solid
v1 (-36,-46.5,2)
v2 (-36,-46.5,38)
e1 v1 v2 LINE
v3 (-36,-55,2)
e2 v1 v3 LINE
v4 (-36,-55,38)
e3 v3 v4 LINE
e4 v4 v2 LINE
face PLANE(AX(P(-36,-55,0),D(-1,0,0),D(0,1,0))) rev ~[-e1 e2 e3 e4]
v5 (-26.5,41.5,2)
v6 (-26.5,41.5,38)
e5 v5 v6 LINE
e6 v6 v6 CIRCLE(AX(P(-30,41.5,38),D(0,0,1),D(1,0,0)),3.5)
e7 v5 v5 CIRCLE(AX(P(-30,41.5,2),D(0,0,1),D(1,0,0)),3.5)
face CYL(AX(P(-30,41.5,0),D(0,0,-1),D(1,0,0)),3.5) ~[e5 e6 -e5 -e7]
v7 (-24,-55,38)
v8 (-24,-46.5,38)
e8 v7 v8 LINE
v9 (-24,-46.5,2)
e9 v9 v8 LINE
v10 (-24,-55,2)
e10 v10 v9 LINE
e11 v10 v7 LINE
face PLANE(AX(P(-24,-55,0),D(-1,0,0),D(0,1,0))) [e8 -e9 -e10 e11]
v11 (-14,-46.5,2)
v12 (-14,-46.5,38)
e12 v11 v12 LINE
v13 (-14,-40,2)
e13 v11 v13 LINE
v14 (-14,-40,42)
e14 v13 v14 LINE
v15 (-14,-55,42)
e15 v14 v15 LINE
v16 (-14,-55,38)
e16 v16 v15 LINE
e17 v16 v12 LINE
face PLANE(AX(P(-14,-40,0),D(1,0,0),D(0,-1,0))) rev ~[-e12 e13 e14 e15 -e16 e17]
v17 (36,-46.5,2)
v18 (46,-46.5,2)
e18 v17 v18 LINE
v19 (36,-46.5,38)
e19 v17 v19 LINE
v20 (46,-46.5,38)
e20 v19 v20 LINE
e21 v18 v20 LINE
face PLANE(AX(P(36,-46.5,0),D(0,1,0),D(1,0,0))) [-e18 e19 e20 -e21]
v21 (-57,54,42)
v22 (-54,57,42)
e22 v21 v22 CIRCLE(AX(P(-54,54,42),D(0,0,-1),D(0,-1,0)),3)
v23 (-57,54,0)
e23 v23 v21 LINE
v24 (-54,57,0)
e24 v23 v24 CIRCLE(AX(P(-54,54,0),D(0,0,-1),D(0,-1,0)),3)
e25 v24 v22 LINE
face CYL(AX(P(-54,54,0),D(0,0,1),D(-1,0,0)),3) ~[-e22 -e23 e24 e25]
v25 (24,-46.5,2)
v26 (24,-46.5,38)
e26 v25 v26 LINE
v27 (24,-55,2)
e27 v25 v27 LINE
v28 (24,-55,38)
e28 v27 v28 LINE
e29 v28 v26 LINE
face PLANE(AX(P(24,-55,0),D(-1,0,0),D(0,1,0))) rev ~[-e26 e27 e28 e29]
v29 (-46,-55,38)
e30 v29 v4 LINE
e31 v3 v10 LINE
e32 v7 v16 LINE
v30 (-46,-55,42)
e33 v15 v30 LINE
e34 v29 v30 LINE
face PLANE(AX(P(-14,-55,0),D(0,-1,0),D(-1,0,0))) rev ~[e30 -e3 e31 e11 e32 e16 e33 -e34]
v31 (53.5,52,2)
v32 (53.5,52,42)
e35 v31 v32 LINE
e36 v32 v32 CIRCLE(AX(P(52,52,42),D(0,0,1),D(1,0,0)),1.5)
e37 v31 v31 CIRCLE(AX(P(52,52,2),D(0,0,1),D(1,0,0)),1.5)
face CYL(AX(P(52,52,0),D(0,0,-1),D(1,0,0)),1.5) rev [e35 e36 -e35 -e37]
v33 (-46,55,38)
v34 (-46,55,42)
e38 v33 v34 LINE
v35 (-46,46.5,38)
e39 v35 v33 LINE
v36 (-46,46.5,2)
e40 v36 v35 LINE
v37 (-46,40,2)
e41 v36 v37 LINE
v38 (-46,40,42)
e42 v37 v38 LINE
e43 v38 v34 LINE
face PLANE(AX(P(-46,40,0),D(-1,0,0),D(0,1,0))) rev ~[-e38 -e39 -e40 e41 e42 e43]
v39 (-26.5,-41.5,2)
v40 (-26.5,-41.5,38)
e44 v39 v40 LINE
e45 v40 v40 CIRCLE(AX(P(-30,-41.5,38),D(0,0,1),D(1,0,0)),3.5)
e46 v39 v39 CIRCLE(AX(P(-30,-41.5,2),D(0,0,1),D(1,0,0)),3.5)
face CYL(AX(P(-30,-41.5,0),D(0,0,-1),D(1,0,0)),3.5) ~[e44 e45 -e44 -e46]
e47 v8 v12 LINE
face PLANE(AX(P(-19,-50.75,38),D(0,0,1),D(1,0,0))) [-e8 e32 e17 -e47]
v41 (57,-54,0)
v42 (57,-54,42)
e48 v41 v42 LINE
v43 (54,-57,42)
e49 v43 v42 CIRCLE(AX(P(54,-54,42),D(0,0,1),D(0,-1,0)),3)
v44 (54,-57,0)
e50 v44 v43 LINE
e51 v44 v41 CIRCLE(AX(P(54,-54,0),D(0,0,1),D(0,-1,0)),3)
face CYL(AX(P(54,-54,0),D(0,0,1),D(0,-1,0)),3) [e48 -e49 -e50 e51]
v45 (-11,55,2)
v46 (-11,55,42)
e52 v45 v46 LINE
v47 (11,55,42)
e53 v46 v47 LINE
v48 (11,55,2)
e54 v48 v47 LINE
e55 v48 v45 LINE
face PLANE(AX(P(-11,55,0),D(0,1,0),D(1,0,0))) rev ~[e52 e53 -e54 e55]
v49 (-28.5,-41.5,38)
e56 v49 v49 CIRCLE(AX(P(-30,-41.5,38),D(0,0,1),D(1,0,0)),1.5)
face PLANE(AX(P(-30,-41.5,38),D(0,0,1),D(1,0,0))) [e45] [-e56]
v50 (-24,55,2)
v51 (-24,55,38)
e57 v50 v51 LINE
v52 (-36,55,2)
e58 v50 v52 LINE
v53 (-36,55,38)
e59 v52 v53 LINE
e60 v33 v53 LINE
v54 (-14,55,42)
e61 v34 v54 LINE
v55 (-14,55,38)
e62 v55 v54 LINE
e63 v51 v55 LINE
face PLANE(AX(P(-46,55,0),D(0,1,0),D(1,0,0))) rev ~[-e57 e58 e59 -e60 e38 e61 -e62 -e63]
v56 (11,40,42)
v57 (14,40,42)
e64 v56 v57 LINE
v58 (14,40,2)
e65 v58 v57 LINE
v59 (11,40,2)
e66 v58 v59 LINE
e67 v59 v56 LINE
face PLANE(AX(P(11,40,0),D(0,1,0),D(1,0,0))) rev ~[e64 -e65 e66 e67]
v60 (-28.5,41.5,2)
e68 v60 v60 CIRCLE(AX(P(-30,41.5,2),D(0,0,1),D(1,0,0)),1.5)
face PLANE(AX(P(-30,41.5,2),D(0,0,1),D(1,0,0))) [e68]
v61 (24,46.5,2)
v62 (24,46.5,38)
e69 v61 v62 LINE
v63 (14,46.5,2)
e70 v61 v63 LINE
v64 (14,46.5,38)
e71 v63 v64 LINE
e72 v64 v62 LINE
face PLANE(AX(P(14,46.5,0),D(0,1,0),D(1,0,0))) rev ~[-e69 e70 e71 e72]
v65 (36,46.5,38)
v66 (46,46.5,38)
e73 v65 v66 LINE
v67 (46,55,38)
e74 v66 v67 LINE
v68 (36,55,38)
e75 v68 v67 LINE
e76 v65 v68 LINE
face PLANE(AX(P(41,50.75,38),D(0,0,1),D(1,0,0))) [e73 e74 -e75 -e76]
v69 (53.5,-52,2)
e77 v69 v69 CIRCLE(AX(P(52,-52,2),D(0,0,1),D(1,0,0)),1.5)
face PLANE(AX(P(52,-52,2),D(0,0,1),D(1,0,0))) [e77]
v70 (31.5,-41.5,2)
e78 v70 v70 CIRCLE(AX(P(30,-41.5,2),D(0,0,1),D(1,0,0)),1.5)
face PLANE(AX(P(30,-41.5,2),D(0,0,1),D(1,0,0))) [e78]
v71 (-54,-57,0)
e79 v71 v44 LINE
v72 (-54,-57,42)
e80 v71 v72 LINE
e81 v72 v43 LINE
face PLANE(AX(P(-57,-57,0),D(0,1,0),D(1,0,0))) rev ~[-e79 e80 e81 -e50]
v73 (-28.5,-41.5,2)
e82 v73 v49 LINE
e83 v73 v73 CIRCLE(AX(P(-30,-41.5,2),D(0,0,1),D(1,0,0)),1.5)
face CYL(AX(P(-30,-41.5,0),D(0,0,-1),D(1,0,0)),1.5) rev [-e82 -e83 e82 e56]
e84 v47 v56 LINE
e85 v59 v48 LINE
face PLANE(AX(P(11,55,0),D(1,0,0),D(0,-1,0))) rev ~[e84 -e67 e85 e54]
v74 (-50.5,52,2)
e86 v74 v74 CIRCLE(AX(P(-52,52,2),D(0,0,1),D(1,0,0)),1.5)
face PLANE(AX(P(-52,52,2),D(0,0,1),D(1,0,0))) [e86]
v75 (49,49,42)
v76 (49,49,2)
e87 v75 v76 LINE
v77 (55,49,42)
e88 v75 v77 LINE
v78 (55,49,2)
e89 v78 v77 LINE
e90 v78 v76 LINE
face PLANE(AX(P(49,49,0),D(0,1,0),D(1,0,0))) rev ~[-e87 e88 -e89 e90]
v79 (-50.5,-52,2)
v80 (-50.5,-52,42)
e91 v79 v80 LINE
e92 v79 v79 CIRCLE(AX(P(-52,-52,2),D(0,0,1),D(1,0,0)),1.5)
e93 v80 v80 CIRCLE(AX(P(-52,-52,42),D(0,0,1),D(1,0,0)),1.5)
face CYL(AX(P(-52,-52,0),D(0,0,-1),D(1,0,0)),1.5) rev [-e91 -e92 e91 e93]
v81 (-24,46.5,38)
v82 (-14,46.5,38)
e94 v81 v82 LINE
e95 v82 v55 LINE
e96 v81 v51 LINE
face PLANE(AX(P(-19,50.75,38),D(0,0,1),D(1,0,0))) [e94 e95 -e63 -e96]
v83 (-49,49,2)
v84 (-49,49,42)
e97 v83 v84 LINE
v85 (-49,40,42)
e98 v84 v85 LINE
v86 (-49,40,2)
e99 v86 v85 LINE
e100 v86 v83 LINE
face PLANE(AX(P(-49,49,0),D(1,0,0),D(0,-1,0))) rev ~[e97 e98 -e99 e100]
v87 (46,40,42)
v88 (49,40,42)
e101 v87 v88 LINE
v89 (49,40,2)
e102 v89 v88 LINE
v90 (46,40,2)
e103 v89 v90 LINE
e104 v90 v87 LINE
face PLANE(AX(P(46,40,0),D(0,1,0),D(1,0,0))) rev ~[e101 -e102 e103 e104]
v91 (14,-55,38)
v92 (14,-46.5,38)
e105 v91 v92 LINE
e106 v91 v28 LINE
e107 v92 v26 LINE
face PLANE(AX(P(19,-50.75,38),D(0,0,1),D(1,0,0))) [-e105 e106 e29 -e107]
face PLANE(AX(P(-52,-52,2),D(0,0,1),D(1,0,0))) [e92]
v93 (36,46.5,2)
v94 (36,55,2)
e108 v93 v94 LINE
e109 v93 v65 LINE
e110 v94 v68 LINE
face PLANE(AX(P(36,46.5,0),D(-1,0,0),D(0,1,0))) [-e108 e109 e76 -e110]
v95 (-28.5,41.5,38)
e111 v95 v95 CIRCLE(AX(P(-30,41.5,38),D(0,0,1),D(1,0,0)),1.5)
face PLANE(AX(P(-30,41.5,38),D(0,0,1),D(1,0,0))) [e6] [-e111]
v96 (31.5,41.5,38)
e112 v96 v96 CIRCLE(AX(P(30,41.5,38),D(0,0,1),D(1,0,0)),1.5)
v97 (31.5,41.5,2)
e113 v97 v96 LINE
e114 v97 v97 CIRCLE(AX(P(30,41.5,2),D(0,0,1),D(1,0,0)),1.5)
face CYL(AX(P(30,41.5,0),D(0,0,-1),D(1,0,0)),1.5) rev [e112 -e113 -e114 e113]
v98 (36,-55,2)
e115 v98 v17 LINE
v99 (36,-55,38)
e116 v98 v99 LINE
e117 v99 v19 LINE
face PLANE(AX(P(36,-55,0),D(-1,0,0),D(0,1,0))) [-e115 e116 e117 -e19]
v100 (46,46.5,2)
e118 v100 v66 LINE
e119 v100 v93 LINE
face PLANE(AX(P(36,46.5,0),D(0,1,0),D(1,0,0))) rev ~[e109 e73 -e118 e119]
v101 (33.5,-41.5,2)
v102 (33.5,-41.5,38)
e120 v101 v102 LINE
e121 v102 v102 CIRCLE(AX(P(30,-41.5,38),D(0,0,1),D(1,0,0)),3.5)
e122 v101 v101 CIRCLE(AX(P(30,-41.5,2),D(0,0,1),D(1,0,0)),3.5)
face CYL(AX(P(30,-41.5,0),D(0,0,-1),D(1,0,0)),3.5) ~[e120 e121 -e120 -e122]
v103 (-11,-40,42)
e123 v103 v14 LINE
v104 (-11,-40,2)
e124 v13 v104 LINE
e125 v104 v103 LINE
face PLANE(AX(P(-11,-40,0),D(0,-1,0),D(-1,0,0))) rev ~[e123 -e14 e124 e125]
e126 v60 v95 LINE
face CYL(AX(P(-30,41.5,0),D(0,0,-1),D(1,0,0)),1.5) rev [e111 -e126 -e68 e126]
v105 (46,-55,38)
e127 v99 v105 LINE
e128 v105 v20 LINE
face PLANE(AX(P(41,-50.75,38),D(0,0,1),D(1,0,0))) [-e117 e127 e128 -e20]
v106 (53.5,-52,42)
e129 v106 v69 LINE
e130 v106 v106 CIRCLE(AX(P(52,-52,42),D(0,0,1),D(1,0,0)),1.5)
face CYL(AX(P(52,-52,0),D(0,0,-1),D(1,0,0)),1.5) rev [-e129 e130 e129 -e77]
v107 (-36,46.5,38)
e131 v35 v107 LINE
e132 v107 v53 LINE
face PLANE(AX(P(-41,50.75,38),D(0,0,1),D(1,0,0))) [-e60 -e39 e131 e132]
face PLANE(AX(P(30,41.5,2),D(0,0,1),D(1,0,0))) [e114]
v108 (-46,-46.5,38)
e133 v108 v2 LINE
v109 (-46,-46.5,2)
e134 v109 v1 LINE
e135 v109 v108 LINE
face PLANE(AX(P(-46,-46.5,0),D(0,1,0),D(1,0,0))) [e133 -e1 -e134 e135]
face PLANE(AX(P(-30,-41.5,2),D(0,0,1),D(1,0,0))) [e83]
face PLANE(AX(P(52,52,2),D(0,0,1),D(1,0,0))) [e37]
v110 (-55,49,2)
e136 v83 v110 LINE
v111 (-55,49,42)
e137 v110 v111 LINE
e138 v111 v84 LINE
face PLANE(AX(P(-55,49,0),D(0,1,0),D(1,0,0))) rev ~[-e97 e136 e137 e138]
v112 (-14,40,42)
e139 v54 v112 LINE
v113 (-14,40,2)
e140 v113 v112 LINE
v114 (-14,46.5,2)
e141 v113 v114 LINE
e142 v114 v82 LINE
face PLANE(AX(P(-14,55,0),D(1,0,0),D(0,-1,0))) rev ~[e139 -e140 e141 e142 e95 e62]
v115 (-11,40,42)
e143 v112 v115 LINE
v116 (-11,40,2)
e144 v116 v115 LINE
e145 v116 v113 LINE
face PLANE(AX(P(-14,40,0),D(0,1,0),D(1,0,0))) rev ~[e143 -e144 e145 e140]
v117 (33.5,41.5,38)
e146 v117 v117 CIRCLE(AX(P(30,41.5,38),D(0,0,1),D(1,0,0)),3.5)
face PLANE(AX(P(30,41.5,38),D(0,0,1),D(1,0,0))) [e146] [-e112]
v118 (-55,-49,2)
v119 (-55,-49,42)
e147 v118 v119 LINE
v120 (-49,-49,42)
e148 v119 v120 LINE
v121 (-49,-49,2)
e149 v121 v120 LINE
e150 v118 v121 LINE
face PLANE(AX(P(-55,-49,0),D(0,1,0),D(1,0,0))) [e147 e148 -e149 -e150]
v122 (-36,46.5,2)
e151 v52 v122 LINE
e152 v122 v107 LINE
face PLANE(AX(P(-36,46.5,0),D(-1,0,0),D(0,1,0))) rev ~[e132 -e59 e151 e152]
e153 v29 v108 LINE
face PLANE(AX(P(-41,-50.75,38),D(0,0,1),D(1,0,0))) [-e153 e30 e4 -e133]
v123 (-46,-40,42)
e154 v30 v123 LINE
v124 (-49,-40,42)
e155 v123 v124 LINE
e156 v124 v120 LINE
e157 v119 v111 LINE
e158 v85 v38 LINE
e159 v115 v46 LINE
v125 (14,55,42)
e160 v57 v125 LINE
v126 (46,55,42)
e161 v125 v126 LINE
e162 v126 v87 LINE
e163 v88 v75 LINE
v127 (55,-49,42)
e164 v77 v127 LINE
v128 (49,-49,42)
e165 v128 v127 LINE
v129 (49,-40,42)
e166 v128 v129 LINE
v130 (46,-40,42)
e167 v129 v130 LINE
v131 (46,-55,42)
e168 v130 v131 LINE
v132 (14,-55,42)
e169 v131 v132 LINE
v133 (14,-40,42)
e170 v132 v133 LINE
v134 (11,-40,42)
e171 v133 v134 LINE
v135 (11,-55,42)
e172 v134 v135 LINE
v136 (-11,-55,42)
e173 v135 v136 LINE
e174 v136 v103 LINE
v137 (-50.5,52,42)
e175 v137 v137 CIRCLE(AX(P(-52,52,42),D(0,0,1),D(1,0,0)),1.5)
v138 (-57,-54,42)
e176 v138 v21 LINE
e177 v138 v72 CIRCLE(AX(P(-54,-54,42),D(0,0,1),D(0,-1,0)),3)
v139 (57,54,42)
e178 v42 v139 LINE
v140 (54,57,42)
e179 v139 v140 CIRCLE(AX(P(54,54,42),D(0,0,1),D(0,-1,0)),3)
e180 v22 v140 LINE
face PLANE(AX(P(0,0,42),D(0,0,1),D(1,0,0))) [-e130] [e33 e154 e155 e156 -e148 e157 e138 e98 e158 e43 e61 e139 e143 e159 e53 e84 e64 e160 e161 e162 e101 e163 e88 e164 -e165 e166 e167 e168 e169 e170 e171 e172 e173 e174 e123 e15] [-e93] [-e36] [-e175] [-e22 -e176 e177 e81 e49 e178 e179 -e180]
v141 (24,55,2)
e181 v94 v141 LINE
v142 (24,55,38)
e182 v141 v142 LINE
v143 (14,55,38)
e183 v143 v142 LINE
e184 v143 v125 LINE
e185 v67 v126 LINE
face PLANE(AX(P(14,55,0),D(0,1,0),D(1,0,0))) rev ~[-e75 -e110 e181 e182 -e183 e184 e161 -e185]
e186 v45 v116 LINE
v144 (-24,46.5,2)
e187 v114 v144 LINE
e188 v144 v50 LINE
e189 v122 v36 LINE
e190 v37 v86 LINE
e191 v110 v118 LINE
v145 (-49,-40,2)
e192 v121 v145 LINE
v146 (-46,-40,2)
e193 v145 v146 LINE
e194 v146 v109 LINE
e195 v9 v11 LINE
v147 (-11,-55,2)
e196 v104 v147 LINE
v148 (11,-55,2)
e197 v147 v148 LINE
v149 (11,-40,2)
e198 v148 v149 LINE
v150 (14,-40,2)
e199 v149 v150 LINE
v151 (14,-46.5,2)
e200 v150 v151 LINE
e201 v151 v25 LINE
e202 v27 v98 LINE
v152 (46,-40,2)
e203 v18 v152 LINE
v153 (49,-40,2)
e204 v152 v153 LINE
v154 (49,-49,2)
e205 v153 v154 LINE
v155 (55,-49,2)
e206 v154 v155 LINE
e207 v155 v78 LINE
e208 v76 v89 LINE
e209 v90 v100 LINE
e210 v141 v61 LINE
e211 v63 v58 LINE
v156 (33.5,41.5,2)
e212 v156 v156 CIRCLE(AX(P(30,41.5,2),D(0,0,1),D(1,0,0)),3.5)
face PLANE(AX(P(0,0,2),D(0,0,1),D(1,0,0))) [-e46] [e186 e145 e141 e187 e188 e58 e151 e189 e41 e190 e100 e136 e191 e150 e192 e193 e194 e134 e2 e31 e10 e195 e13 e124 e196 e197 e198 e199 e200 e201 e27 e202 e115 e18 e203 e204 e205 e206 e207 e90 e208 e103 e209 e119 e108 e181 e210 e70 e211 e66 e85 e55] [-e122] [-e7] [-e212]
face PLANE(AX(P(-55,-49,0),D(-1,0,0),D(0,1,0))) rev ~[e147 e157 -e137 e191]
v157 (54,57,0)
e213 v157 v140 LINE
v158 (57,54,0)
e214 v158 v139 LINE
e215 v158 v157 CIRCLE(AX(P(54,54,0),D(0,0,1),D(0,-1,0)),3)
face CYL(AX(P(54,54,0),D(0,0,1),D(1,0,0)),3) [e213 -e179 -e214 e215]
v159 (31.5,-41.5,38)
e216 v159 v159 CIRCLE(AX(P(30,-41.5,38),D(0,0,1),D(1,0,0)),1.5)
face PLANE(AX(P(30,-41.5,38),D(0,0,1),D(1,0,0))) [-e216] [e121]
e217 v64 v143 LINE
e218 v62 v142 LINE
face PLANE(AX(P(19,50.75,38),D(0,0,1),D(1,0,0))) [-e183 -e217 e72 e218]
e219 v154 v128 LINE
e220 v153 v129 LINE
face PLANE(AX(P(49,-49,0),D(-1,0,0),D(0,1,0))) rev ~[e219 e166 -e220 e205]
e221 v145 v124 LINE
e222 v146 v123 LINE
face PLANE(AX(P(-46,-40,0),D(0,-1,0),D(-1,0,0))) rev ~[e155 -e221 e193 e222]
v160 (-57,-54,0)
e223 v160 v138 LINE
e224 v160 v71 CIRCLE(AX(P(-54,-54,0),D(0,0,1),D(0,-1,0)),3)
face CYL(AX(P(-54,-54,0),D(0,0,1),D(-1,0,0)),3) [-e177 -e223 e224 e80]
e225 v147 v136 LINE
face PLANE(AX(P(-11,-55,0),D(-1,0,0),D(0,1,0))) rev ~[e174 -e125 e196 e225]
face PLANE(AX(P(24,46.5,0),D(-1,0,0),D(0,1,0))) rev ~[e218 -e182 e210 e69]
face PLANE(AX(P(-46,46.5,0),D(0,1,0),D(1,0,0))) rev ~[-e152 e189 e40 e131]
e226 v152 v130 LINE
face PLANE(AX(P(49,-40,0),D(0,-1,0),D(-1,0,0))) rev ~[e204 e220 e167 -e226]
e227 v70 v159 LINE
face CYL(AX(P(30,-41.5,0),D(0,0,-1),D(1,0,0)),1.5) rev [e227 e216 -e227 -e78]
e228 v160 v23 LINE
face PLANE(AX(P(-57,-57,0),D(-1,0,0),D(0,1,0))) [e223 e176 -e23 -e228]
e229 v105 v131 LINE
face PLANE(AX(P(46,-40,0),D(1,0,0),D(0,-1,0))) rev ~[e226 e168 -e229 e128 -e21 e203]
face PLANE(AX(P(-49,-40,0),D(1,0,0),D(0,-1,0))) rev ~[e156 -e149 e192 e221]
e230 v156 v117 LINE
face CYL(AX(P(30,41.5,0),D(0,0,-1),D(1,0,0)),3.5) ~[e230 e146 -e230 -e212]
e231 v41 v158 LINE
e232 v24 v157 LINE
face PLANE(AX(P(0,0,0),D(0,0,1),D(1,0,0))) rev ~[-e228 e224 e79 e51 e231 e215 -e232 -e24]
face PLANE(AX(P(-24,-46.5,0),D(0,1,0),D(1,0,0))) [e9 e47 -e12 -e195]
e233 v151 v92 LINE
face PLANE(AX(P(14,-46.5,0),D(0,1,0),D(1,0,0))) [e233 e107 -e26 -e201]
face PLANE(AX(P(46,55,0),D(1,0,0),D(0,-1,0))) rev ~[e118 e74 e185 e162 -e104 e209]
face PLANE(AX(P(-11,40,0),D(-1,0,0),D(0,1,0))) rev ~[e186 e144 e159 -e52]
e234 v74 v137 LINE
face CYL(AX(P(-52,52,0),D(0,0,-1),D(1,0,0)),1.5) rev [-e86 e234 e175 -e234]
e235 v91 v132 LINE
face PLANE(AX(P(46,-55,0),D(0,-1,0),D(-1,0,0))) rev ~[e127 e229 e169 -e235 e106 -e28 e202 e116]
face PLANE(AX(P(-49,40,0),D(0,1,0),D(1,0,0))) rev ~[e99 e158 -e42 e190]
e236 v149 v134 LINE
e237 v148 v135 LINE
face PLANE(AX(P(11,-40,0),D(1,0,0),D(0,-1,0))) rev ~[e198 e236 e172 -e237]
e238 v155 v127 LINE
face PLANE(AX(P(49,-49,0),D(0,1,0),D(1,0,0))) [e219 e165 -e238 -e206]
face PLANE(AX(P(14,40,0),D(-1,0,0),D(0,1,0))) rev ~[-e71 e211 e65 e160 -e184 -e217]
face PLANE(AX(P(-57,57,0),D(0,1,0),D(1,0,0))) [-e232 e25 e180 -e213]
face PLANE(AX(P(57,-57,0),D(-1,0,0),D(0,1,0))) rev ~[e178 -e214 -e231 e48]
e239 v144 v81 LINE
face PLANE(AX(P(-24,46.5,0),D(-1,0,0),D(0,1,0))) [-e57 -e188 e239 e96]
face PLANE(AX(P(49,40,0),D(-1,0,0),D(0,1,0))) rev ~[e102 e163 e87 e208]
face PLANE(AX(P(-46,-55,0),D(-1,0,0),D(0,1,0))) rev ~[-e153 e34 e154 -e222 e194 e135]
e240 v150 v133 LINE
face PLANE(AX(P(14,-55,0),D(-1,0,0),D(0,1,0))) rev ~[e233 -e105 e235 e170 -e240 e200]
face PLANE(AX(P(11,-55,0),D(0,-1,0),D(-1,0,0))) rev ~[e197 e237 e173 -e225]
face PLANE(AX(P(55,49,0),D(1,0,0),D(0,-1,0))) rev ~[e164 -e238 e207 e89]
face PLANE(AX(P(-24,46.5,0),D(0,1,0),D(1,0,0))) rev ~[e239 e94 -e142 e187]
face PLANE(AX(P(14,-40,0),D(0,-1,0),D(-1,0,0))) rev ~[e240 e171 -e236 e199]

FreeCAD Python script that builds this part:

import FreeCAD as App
import Part
import Sketcher

V = App.Vector


def edges_at(feature, points):
    """Names of the edges that pass closest to the given points."""
    edges = feature.Shape.Edges
    near = lambda p: min(range(len(edges)), key=lambda i: edges[i].distToShape(Part.Vertex(*p))[0])
    return sorted({f"Edge{near(p) + 1}" for p in points})


def add_polygon(sketch, points):
    """Adds a closed chain of lines whose ends are joined by coincident constraints."""
    first, n = sketch.GeometryCount, len(points)
    for a, b in zip(points, points[1:] + points[:1]):
        sketch.addGeometry(Part.LineSegment(App.Vector(*a, 0), App.Vector(*b, 0)), False)
    for i in range(n):
        sketch.addConstraint(Sketcher.Constraint("Coincident", first + i, 2, first + (i + 1) % n, 1))

doc = App.newDocument("Part")
body = doc.addObject("PartDesign::Body", "Body")

# Sketch on XY plane
sketch1 = doc.addObject("Sketcher::SketchObject", "Sketch")
body.addObject(sketch1)
sketch1.AttachmentSupport = (doc.XY_Plane, [""])
sketch1.MapMode = "FlatFace"
add_polygon(sketch1, [(-57, 57), (-57, -57), (57, -57), (57, 57)])  # lines 0-3
sketch1.addGeometry(Part.Circle(V(-52, -52, 0), V(0, 0, 1), 1.5), False)  # 4
sketch1.addGeometry(Part.Circle(V(52, -52, 0), V(0, 0, 1), 1.5), False)  # 5
sketch1.addGeometry(Part.Circle(V(-52, 52, 0), V(0, 0, 1), 1.5), False)  # 6
add_polygon(sketch1, [(-49, 49), (-49, 40), (-46, 40), (-46, 55), (-14, 55), (-14, 40), (-11, 40), (-11, 55), (11, 55), (11, 40), (14, 40), (14, 55), (46, 55), (46, 40), (49, 40), (49, 49), (55, 49), (55, -49), (49, -49), (49, -40), (46, -40), (46, -55), (14, -55), (14, -40), (11, -40), (11, -55), (-11, -55), (-11, -40), (-14, -40), (-14, -55), (-46, -55), (-46, -40), (-49, -40), (-49, -49), (-55, -49), (-55, 49)])  # lines 7-42
sketch1.addGeometry(Part.Circle(V(52, 52, 0), V(0, 0, 1), 1.5), False)  # 43
sketch1.addConstraint(Sketcher.Constraint("Vertical", 0))
sketch1.addConstraint(Sketcher.Constraint("Horizontal", 1))
sketch1.addConstraint(Sketcher.Constraint("Vertical", 2))
sketch1.addConstraint(Sketcher.Constraint("Horizontal", 3))
sketch1.addConstraint(Sketcher.Constraint("Vertical", 7))
sketch1.addConstraint(Sketcher.Constraint("Horizontal", 8))
sketch1.addConstraint(Sketcher.Constraint("Vertical", 9))
sketch1.addConstraint(Sketcher.Constraint("Horizontal", 10))
sketch1.addConstraint(Sketcher.Constraint("Vertical", 11))
sketch1.addConstraint(Sketcher.Constraint("Horizontal", 12))
sketch1.addConstraint(Sketcher.Constraint("Vertical", 13))
sketch1.addConstraint(Sketcher.Constraint("Horizontal", 14))
sketch1.addConstraint(Sketcher.Constraint("Vertical", 15))
sketch1.addConstraint(Sketcher.Constraint("Horizontal", 16))
sketch1.addConstraint(Sketcher.Constraint("Vertical", 17))
sketch1.addConstraint(Sketcher.Constraint("Horizontal", 18))
sketch1.addConstraint(Sketcher.Constraint("Vertical", 19))
sketch1.addConstraint(Sketcher.Constraint("Horizontal", 20))
sketch1.addConstraint(Sketcher.Constraint("Vertical", 21))
sketch1.addConstraint(Sketcher.Constraint("Horizontal", 22))
sketch1.addConstraint(Sketcher.Constraint("Vertical", 23))
sketch1.addConstraint(Sketcher.Constraint("Horizontal", 24))
sketch1.addConstraint(Sketcher.Constraint("Vertical", 25))
sketch1.addConstraint(Sketcher.Constraint("Horizontal", 26))
sketch1.addConstraint(Sketcher.Constraint("Vertical", 27))
sketch1.addConstraint(Sketcher.Constraint("Horizontal", 28))
sketch1.addConstraint(Sketcher.Constraint("Vertical", 29))
sketch1.addConstraint(Sketcher.Constraint("Horizontal", 30))
sketch1.addConstraint(Sketcher.Constraint("Vertical", 31))
sketch1.addConstraint(Sketcher.Constraint("Horizontal", 32))
sketch1.addConstraint(Sketcher.Constraint("Vertical", 33))
sketch1.addConstraint(Sketcher.Constraint("Horizontal", 34))
sketch1.addConstraint(Sketcher.Constraint("Vertical", 35))
sketch1.addConstraint(Sketcher.Constraint("Horizontal", 36))
sketch1.addConstraint(Sketcher.Constraint("Vertical", 37))
sketch1.addConstraint(Sketcher.Constraint("Horizontal", 38))
sketch1.addConstraint(Sketcher.Constraint("Vertical", 39))
sketch1.addConstraint(Sketcher.Constraint("Horizontal", 40))
sketch1.addConstraint(Sketcher.Constraint("Vertical", 41))
sketch1.addConstraint(Sketcher.Constraint("Horizontal", 42))
sketch1.addConstraint(Sketcher.Constraint("Equal", 4, 5))
sketch1.addConstraint(Sketcher.Constraint("Equal", 5, 6))
sketch1.addConstraint(Sketcher.Constraint("Equal", 6, 43))
sketch1.addConstraint(Sketcher.Constraint("Symmetric", 5, 3, 6, 3, -1, 1))
sketch1.addConstraint(Sketcher.Constraint("Symmetric", 4, 3, 43, 3, -1, 1))
sketch1.addConstraint(Sketcher.Constraint("Symmetric", 0, 2, 2, 2, -1, 1))
sketch1.addConstraint(Sketcher.Constraint("Symmetric", 7, 2, 25, 2, -1, 1))
sketch1.addConstraint(Sketcher.Constraint("Symmetric", 9, 2, 27, 2, -1, 1))
sketch1.addConstraint(Sketcher.Constraint("Symmetric", 11, 2, 29, 2, -1, 1))
sketch1.addConstraint(Sketcher.Constraint("Symmetric", 13, 2, 31, 2, -1, 1))
sketch1.addConstraint(Sketcher.Constraint("Symmetric", 15, 2, 33, 2, -1, 1))
sketch1.addConstraint(Sketcher.Constraint("Symmetric", 17, 2, 35, 2, -1, 1))
sketch1.addConstraint(Sketcher.Constraint("Symmetric", 19, 2, 37, 2, -1, 1))
sketch1.addConstraint(Sketcher.Constraint("Symmetric", 21, 2, 39, 2, -1, 1))
sketch1.addConstraint(Sketcher.Constraint("Symmetric", 23, 2, 41, 2, -1, 1))
sketch1.addConstraint(Sketcher.Constraint("Symmetric", 4, 3, 5, 3, -2))
sketch1.addConstraint(Sketcher.Constraint("Symmetric", 12, 2, 15, 2, -2))
sketch1.addConstraint(Sketcher.Constraint("Symmetric", 10, 2, 17, 2, -2))
sketch1.addConstraint(Sketcher.Constraint("Symmetric", 8, 2, 19, 2, -2))
sketch1.addConstraint(Sketcher.Constraint("Symmetric", 24, 2, 39, 2, -2))
sketch1.addConstraint(Sketcher.Constraint("Horizontal", 8, 2, 11, 2))
sketch1.addConstraint(Sketcher.Constraint("Horizontal", 10, 2, 13, 2))
sketch1.addConstraint(Sketcher.Constraint("Equal", 8, 12))
sketch1.addConstraint(Sketcher.Constraint("Equal", 3, 0))
sketch1.addConstraint(Sketcher.Constraint("Diameter", 4, 3.0))
sketch1.addConstraint(Sketcher.Constraint("DistanceX", 1, 1, 1, 2, 114.0))
sketch1.addConstraint(Sketcher.Constraint("DistanceX", 8, 1, 8, 2, 3.0))
sketch1.addConstraint(Sketcher.Constraint("DistanceX", 10, 1, 10, 2, 32.0))
sketch1.addConstraint(Sketcher.Constraint("DistanceX", 14, 1, 14, 2, 22.0))
sketch1.addConstraint(Sketcher.Constraint("DistanceX", 22, 1, 22, 2, 6.0))
sketch1.addConstraint(Sketcher.Constraint("DistanceY", 7, 2, 7, 1, 9.0))
sketch1.addConstraint(Sketcher.Constraint("DistanceY", 9, 1, 9, 2, 15.0))
sketch1.addConstraint(Sketcher.Constraint("DistanceY", 23, 2, 23, 1, 98.0))
sketch1.addConstraint(Sketcher.Constraint("DistanceX", 4, 3, -1, 1, 52.0))
sketch1.addConstraint(Sketcher.Constraint("DistanceY", 4, 3, -1, 1, 52.0))
pad1 = doc.addObject("PartDesign::Pad", "Pad")
body.addObject(pad1)
pad1.Profile = sketch1
pad1.Length = 42

# Sketch on XY plane
sketch2 = doc.addObject("Sketcher::SketchObject", "Sketch001")
body.addObject(sketch2)
sketch2.AttachmentSupport = (doc.XY_Plane, [""])
sketch2.MapMode = "FlatFace"
add_polygon(sketch2, [(-46, 55), (-46, 46), (-36, 46), (-36, 55)])  # lines 0-3
add_polygon(sketch2, [(-24, 55), (-24, 46), (-14, 46), (-14, 55)])  # lines 4-7
add_polygon(sketch2, [(14, 55), (14, 46), (24, 46), (24, 55)])  # lines 8-11
add_polygon(sketch2, [(36, 55), (36, 46), (46, 46), (46, 55)])  # lines 12-15
add_polygon(sketch2, [(-24, -46), (-24, -55), (-14, -55), (-14, -46)])  # lines 16-19
add_polygon(sketch2, [(-46, -46), (-46, -55), (-36, -55), (-36, -46)])  # lines 20-23
add_polygon(sketch2, [(14, -46), (14, -55), (24, -55), (24, -46)])  # lines 24-27
add_polygon(sketch2, [(36, -46), (36, -55), (46, -55), (46, -46)])  # lines 28-31
sketch2.addConstraint(Sketcher.Constraint("Vertical", 0))
sketch2.addConstraint(Sketcher.Constraint("Horizontal", 1))
sketch2.addConstraint(Sketcher.Constraint("Vertical", 2))
sketch2.addConstraint(Sketcher.Constraint("Horizontal", 3))
sketch2.addConstraint(Sketcher.Constraint("Vertical", 4))
sketch2.addConstraint(Sketcher.Constraint("Horizontal", 5))
sketch2.addConstraint(Sketcher.Constraint("Vertical", 6))
sketch2.addConstraint(Sketcher.Constraint("Horizontal", 7))
sketch2.addConstraint(Sketcher.Constraint("Vertical", 8))
sketch2.addConstraint(Sketcher.Constraint("Horizontal", 9))
sketch2.addConstraint(Sketcher.Constraint("Vertical", 10))
sketch2.addConstraint(Sketcher.Constraint("Horizontal", 11))
sketch2.addConstraint(Sketcher.Constraint("Vertical", 12))
sketch2.addConstraint(Sketcher.Constraint("Horizontal", 13))
sketch2.addConstraint(Sketcher.Constraint("Vertical", 14))
sketch2.addConstraint(Sketcher.Constraint("Horizontal", 15))
sketch2.addConstraint(Sketcher.Constraint("Vertical", 16))
sketch2.addConstraint(Sketcher.Constraint("Horizontal", 17))
sketch2.addConstraint(Sketcher.Constraint("Vertical", 18))
sketch2.addConstraint(Sketcher.Constraint("Horizontal", 19))
sketch2.addConstraint(Sketcher.Constraint("Vertical", 20))
sketch2.addConstraint(Sketcher.Constraint("Horizontal", 21))
sketch2.addConstraint(Sketcher.Constraint("Vertical", 22))
sketch2.addConstraint(Sketcher.Constraint("Horizontal", 23))
sketch2.addConstraint(Sketcher.Constraint("Vertical", 24))
sketch2.addConstraint(Sketcher.Constraint("Horizontal", 25))
sketch2.addConstraint(Sketcher.Constraint("Vertical", 26))
sketch2.addConstraint(Sketcher.Constraint("Horizontal", 27))
sketch2.addConstraint(Sketcher.Constraint("Vertical", 28))
sketch2.addConstraint(Sketcher.Constraint("Horizontal", 29))
sketch2.addConstraint(Sketcher.Constraint("Vertical", 30))
sketch2.addConstraint(Sketcher.Constraint("Horizontal", 31))
sketch2.addConstraint(Sketcher.Constraint("Symmetric", 10, 2, 16, 2, -1, 1))
sketch2.addConstraint(Sketcher.Constraint("Symmetric", 8, 2, 18, 2, -1, 1))
sketch2.addConstraint(Sketcher.Constraint("Symmetric", 14, 2, 20, 2, -1, 1))
sketch2.addConstraint(Sketcher.Constraint("Symmetric", 12, 2, 22, 2, -1, 1))
sketch2.addConstraint(Sketcher.Constraint("Symmetric", 6, 2, 24, 2, -1, 1))
sketch2.addConstraint(Sketcher.Constraint("Symmetric", 4, 2, 26, 2, -1, 1))
sketch2.addConstraint(Sketcher.Constraint("Symmetric", 2, 2, 28, 2, -1, 1))
sketch2.addConstraint(Sketcher.Constraint("Symmetric", 0, 2, 30, 2, -1, 1))
sketch2.addConstraint(Sketcher.Constraint("Symmetric", 5, 2, 8, 2, -2))
sketch2.addConstraint(Sketcher.Constraint("Symmetric", 7, 2, 10, 2, -2))
sketch2.addConstraint(Sketcher.Constraint("Symmetric", 1, 2, 12, 2, -2))
sketch2.addConstraint(Sketcher.Constraint("Symmetric", 3, 2, 14, 2, -2))
sketch2.addConstraint(Sketcher.Constraint("Horizontal", 1, 2, 4, 2))
sketch2.addConstraint(Sketcher.Constraint("Horizontal", 3, 2, 6, 2))
sketch2.addConstraint(Sketcher.Constraint("Equal", 3, 5))
sketch2.addConstraint(Sketcher.Constraint("DistanceX", 1, 1, 1, 2, 10.0))
sketch2.addConstraint(Sketcher.Constraint("DistanceY", 0, 2, 0, 1, 8.5))
sketch2.addConstraint(Sketcher.Constraint("DistanceX", 0, 2, -1, 1, 46.0))
sketch2.addConstraint(Sketcher.Constraint("DistanceY", -1, 1, 2, 2, 55.0))
sketch2.addConstraint(Sketcher.Constraint("DistanceX", 4, 2, -1, 1, 24.0))
pad2 = doc.addObject("PartDesign::Pad", "Pad001")
body.addObject(pad2)
pad2.Profile = sketch2
pad2.Length = 38

# Sketch on XY plane
sketch3 = doc.addObject("Sketcher::SketchObject", "Sketch002")
body.addObject(sketch3)
sketch3.AttachmentSupport = (doc.XY_Plane, [""])
sketch3.MapMode = "FlatFace"
add_polygon(sketch3, [(49, 55), (49, 49), (55, 49), (55, 55)])  # lines 0-3
sketch3.addGeometry(Part.Circle(V(52, 52, 0), V(0, 0, 1), 1.5), False)  # 4
add_polygon(sketch3, [(49, -49), (49, -55), (55, -55), (55, -49)])  # lines 5-8
sketch3.addGeometry(Part.Circle(V(52, -52, 0), V(0, 0, 1), 1.5), False)  # 9
sketch3.addConstraint(Sketcher.Constraint("Vertical", 0))
sketch3.addConstraint(Sketcher.Constraint("Horizontal", 1))
sketch3.addConstraint(Sketcher.Constraint("Vertical", 2))
sketch3.addConstraint(Sketcher.Constraint("Horizontal", 3))
sketch3.addConstraint(Sketcher.Constraint("Vertical", 5))
sketch3.addConstraint(Sketcher.Constraint("Horizontal", 6))
sketch3.addConstraint(Sketcher.Constraint("Vertical", 7))
sketch3.addConstraint(Sketcher.Constraint("Horizontal", 8))
sketch3.addConstraint(Sketcher.Constraint("Equal", 4, 9))
sketch3.addConstraint(Sketcher.Constraint("Symmetric", 4, 3, 9, 3, -1))
sketch3.addConstraint(Sketcher.Constraint("Symmetric", 3, 2, 5, 2, -1))
sketch3.addConstraint(Sketcher.Constraint("Symmetric", 1, 2, 7, 2, -1))
sketch3.addConstraint(Sketcher.Constraint("Equal", 8, 0))
sketch3.addConstraint(Sketcher.Constraint("Diameter", 4, 3.0))
sketch3.addConstraint(Sketcher.Constraint("DistanceX", 1, 1, 1, 2, 6.0))
sketch3.addConstraint(Sketcher.Constraint("DistanceX", -1, 1, 4, 3, 52.0))
sketch3.addConstraint(Sketcher.Constraint("DistanceY", -1, 1, 4, 3, 52.0))
sketch3.addConstraint(Sketcher.Constraint("DistanceX", -1, 1, 0, 2, 49.0))
sketch3.addConstraint(Sketcher.Constraint("DistanceY", -1, 1, 0, 2, 49.0))
pad3 = doc.addObject("PartDesign::Pad", "Pad002")
body.addObject(pad3)
pad3.Profile = sketch3
pad3.Length = 2
body2 = doc.addObject("PartDesign::Body", "Body001")

# Sketch on XY plane
sketch4 = doc.addObject("Sketcher::SketchObject", "Sketch003")
body2.addObject(sketch4)
sketch4.AttachmentSupport = (doc.getObject("XY_Plane001"), [""])
sketch4.MapMode = "FlatFace"
sketch4.addGeometry(Part.Circle(V(-30, 41.5, 0), V(0, 0, 1), 3.5), False)
sketch4.addGeometry(Part.Circle(V(-30, 41.5, 0), V(0, 0, 1), 1.5), False)
sketch4.addConstraint(Sketcher.Constraint("Coincident", 1, 3, 0, 3))
sketch4.addConstraint(Sketcher.Constraint("Diameter", 0, 7.0))
sketch4.addConstraint(Sketcher.Constraint("Diameter", 1, 3.0))
sketch4.addConstraint(Sketcher.Constraint("DistanceX", 0, 3, -1, 1, 30.0))
sketch4.addConstraint(Sketcher.Constraint("DistanceY", -1, 1, 0, 3, 41.5))
pad4 = doc.addObject("PartDesign::Pad", "Pad003")
body2.addObject(pad4)
pad4.Profile = sketch4
pad4.Length = 38
body3 = doc.addObject("PartDesign::Body", "Body002")

# Sketch on XY plane
sketch5 = doc.addObject("Sketcher::SketchObject", "Sketch004")
body3.addObject(sketch5)
sketch5.AttachmentSupport = (doc.getObject("XY_Plane002"), [""])
sketch5.MapMode = "FlatFace"
sketch5.addGeometry(Part.Circle(V(30, 41.5, 0), V(0, 0, 1), 3.5), False)
sketch5.addGeometry(Part.Circle(V(30, 41.5, 0), V(0, 0, 1), 1.5), False)
sketch5.addConstraint(Sketcher.Constraint("Coincident", 1, 3, 0, 3))
sketch5.addConstraint(Sketcher.Constraint("Diameter", 0, 7.0))
sketch5.addConstraint(Sketcher.Constraint("Diameter", 1, 3.0))
sketch5.addConstraint(Sketcher.Constraint("DistanceX", -1, 1, 0, 3, 30.0))
sketch5.addConstraint(Sketcher.Constraint("DistanceY", -1, 1, 0, 3, 41.5))
pad5 = doc.addObject("PartDesign::Pad", "Pad004")
body3.addObject(pad5)
pad5.Profile = sketch5
pad5.Length = 38
body4 = doc.addObject("PartDesign::Body", "Body003")

# Sketch on XY plane
sketch6 = doc.addObject("Sketcher::SketchObject", "Sketch005")
body4.addObject(sketch6)
sketch6.AttachmentSupport = (doc.getObject("XY_Plane003"), [""])
sketch6.MapMode = "FlatFace"
sketch6.addGeometry(Part.Circle(V(30, -41.5, 0), V(0, 0, 1), 3.5), False)
sketch6.addGeometry(Part.Circle(V(30, -41.5, 0), V(0, 0, 1), 1.5), False)
sketch6.addConstraint(Sketcher.Constraint("Coincident", 1, 3, 0, 3))
sketch6.addConstraint(Sketcher.Constraint("Diameter", 0, 7.0))
sketch6.addConstraint(Sketcher.Constraint("Diameter", 1, 3.0))
sketch6.addConstraint(Sketcher.Constraint("DistanceX", -1, 1, 0, 3, 30.0))
sketch6.addConstraint(Sketcher.Constraint("DistanceY", 0, 3, -1, 1, 41.5))
pad6 = doc.addObject("PartDesign::Pad", "Pad005")
body4.addObject(pad6)
pad6.Profile = sketch6
pad6.Length = 38
body5 = doc.addObject("PartDesign::Body", "Body004")

# Sketch on XY plane
sketch7 = doc.addObject("Sketcher::SketchObject", "Sketch006")
body5.addObject(sketch7)
sketch7.AttachmentSupport = (doc.getObject("XY_Plane004"), [""])
sketch7.MapMode = "FlatFace"
sketch7.addGeometry(Part.Circle(V(-30, -41.5, 0), V(0, 0, 1), 3.5), False)
sketch7.addGeometry(Part.Circle(V(-30, -41.5, 0), V(0, 0, 1), 1.5), False)
sketch7.addConstraint(Sketcher.Constraint("Coincident", 1, 3, 0, 3))
sketch7.addConstraint(Sketcher.Constraint("Diameter", 0, 7.0))
sketch7.addConstraint(Sketcher.Constraint("Diameter", 1, 3.0))
sketch7.addConstraint(Sketcher.Constraint("DistanceX", 0, 3, -1, 1, 30.0))
sketch7.addConstraint(Sketcher.Constraint("DistanceY", 0, 3, -1, 1, 41.5))
pad7 = doc.addObject("PartDesign::Pad", "Pad006")
body5.addObject(pad7)
pad7.Profile = sketch7
pad7.Length = 38
body.AllowCompound = True
doc.recompute()

boolean = doc.addObject("PartDesign::Boolean", "Boolean")
body.addObject(boolean)
boolean.Type = "Fuse"
boolean.addObjects([body2])
doc.recompute()

boolean2 = doc.addObject("PartDesign::Boolean", "Boolean001")
body.addObject(boolean2)
boolean2.Type = "Fuse"
boolean2.addObjects([body3])
doc.recompute()

boolean3 = doc.addObject("PartDesign::Boolean", "Boolean002")
body.addObject(boolean3)
boolean3.Type = "Fuse"
boolean3.addObjects([body4])
doc.recompute()

boolean4 = doc.addObject("PartDesign::Boolean", "Boolean003")
body.addObject(boolean4)
boolean4.Type = "Fuse"
boolean4.addObjects([body5])

# Sketch on XY plane
sketch8 = doc.addObject("Sketcher::SketchObject", "Sketch007")
body.addObject(sketch8)
sketch8.AttachmentSupport = (doc.XY_Plane, [""])
sketch8.MapMode = "FlatFace"
add_polygon(sketch8, [(55, -49), (55, 49), (49, 49), (49, 40), (46, 40), (46, 46.5), (36, 46.5), (36, 55), (24, 55), (24, 46.5), (14, 46.5), (14, 40), (11, 40), (11, 55), (-11, 55), (-11, 40), (-14, 40), (-14, 46.5), (-24, 46.5), (-24, 55), (-36, 55), (-36, 46.5), (-46, 46.5), (-46, 40), (-49, 40), (-49, 49), (-55, 49), (-55, -49), (-49, -49), (-49, -40), (-46, -40), (-46, -46.5), (-36, -46.5), (-36, -55), (-24, -55), (-24, -46.5), (-14, -46.5), (-14, -40), (-11, -40), (-11, -55), (11, -55), (11, -40), (14, -40), (14, -46.5), (24, -46.5), (24, -55), (36, -55), (36, -46.5), (46, -46.5), (46, -40), (49, -40), (49, -49)])  # lines 0-51
sketch8.addGeometry(Part.Circle(V(-30, -41.5, 0), V(0, 0, 1), 3.5), False)  # 52
sketch8.addGeometry(Part.Circle(V(30, -41.5, 0), V(0, 0, 1), 3.5), False)  # 53
sketch8.addGeometry(Part.Circle(V(-30, 41.5, 0), V(0, 0, 1), 3.5), False)  # 54
sketch8.addGeometry(Part.Circle(V(30, 41.5, 0), V(0, 0, 1), 3.5), False)  # 55
sketch8.addGeometry(Part.Circle(V(-52, 52, 0), V(0, 0, 1), 1.5), False)  # 56
sketch8.addGeometry(Part.Circle(V(-30, 41.5, 0), V(0, 0, 1), 1.5), False)  # 57
sketch8.addGeometry(Part.Circle(V(30, 41.5, 0), V(0, 0, 1), 1.5), False)  # 58
sketch8.addGeometry(Part.Circle(V(52, 52, 0), V(0, 0, 1), 1.5), False)  # 59
sketch8.addGeometry(Part.Circle(V(-52, -52, 0), V(0, 0, 1), 1.5), False)  # 60
sketch8.addGeometry(Part.Circle(V(-30, -41.5, 0), V(0, 0, 1), 1.5), False)  # 61
sketch8.addGeometry(Part.Circle(V(30, -41.5, 0), V(0, 0, 1), 1.5), False)  # 62
sketch8.addGeometry(Part.Circle(V(52, -52, 0), V(0, 0, 1), 1.5), False)  # 63
sketch8.addConstraint(Sketcher.Constraint("Vertical", 0))
sketch8.addConstraint(Sketcher.Constraint("Horizontal", 1))
sketch8.addConstraint(Sketcher.Constraint("Vertical", 2))
sketch8.addConstraint(Sketcher.Constraint("Horizontal", 3))
sketch8.addConstraint(Sketcher.Constraint("Vertical", 4))
sketch8.addConstraint(Sketcher.Constraint("Horizontal", 5))
sketch8.addConstraint(Sketcher.Constraint("Vertical", 6))
sketch8.addConstraint(Sketcher.Constraint("Horizontal", 7))
sketch8.addConstraint(Sketcher.Constraint("Vertical", 8))
sketch8.addConstraint(Sketcher.Constraint("Horizontal", 9))
sketch8.addConstraint(Sketcher.Constraint("Vertical", 10))
sketch8.addConstraint(Sketcher.Constraint("Horizontal", 11))
sketch8.addConstraint(Sketcher.Constraint("Vertical", 12))
sketch8.addConstraint(Sketcher.Constraint("Horizontal", 13))
sketch8.addConstraint(Sketcher.Constraint("Vertical", 14))
sketch8.addConstraint(Sketcher.Constraint("Horizontal", 15))
sketch8.addConstraint(Sketcher.Constraint("Vertical", 16))
sketch8.addConstraint(Sketcher.Constraint("Horizontal", 17))
sketch8.addConstraint(Sketcher.Constraint("Vertical", 18))
sketch8.addConstraint(Sketcher.Constraint("Horizontal", 19))
sketch8.addConstraint(Sketcher.Constraint("Vertical", 20))
sketch8.addConstraint(Sketcher.Constraint("Horizontal", 21))
sketch8.addConstraint(Sketcher.Constraint("Vertical", 22))
sketch8.addConstraint(Sketcher.Constraint("Horizontal", 23))
sketch8.addConstraint(Sketcher.Constraint("Vertical", 24))
sketch8.addConstraint(Sketcher.Constraint("Horizontal", 25))
sketch8.addConstraint(Sketcher.Constraint("Vertical", 26))
sketch8.addConstraint(Sketcher.Constraint("Horizontal", 27))
sketch8.addConstraint(Sketcher.Constraint("Vertical", 28))
sketch8.addConstraint(Sketcher.Constraint("Horizontal", 29))
sketch8.addConstraint(Sketcher.Constraint("Vertical", 30))
sketch8.addConstraint(Sketcher.Constraint("Horizontal", 31))
sketch8.addConstraint(Sketcher.Constraint("Vertical", 32))
sketch8.addConstraint(Sketcher.Constraint("Horizontal", 33))
sketch8.addConstraint(Sketcher.Constraint("Vertical", 34))
sketch8.addConstraint(Sketcher.Constraint("Horizontal", 35))
sketch8.addConstraint(Sketcher.Constraint("Vertical", 36))
sketch8.addConstraint(Sketcher.Constraint("Horizontal", 37))
sketch8.addConstraint(Sketcher.Constraint("Vertical", 38))
sketch8.addConstraint(Sketcher.Constraint("Horizontal", 39))
sketch8.addConstraint(Sketcher.Constraint("Vertical", 40))
sketch8.addConstraint(Sketcher.Constraint("Horizontal", 41))
sketch8.addConstraint(Sketcher.Constraint("Vertical", 42))
sketch8.addConstraint(Sketcher.Constraint("Horizontal", 43))
sketch8.addConstraint(Sketcher.Constraint("Vertical", 44))
sketch8.addConstraint(Sketcher.Constraint("Horizontal", 45))
sketch8.addConstraint(Sketcher.Constraint("Vertical", 46))
sketch8.addConstraint(Sketcher.Constraint("Horizontal", 47))
sketch8.addConstraint(Sketcher.Constraint("Vertical", 48))
sketch8.addConstraint(Sketcher.Constraint("Horizontal", 49))
sketch8.addConstraint(Sketcher.Constraint("Vertical", 50))
sketch8.addConstraint(Sketcher.Constraint("Horizontal", 51))
sketch8.addConstraint(Sketcher.Constraint("Coincident", 57, 3, 54, 3))
sketch8.addConstraint(Sketcher.Constraint("Coincident", 58, 3, 55, 3))
sketch8.addConstraint(Sketcher.Constraint("Coincident", 61, 3, 52, 3))
sketch8.addConstraint(Sketcher.Constraint("Coincident", 62, 3, 53, 3))
sketch8.addConstraint(Sketcher.Constraint("Equal", 52, 53))
sketch8.addConstraint(Sketcher.Constraint("Equal", 53, 54))
sketch8.addConstraint(Sketcher.Constraint("Equal", 54, 55))
sketch8.addConstraint(Sketcher.Constraint("Equal", 56, 57))
sketch8.addConstraint(Sketcher.Constraint("Equal", 57, 58))
sketch8.addConstraint(Sketcher.Constraint("Equal", 58, 59))
sketch8.addConstraint(Sketcher.Constraint("Equal", 59, 60))
sketch8.addConstraint(Sketcher.Constraint("Equal", 60, 61))
sketch8.addConstraint(Sketcher.Constraint("Equal", 61, 62))
sketch8.addConstraint(Sketcher.Constraint("Equal", 62, 63))
sketch8.addConstraint(Sketcher.Constraint("Symmetric", 53, 3, 54, 3, -1, 1))
sketch8.addConstraint(Sketcher.Constraint("Symmetric", 52, 3, 55, 3, -1, 1))
sketch8.addConstraint(Sketcher.Constraint("Symmetric", 59, 3, 60, 3, -1, 1))
sketch8.addConstraint(Sketcher.Constraint("Symmetric", 56, 3, 63, 3, -1, 1))
sketch8.addConstraint(Sketcher.Constraint("Symmetric", 0, 2, 26, 2, -1, 1))
sketch8.addConstraint(Sketcher.Constraint("Symmetric", 2, 2, 28, 2, -1, 1))
sketch8.addConstraint(Sketcher.Constraint("Symmetric", 4, 2, 30, 2, -1, 1))
sketch8.addConstraint(Sketcher.Constraint("Symmetric", 6, 2, 32, 2, -1, 1))
sketch8.addConstraint(Sketcher.Constraint("Symmetric", 8, 2, 34, 2, -1, 1))
sketch8.addConstraint(Sketcher.Constraint("Symmetric", 10, 2, 36, 2, -1, 1))
sketch8.addConstraint(Sketcher.Constraint("Symmetric", 12, 2, 38, 2, -1, 1))
sketch8.addConstraint(Sketcher.Constraint("Symmetric", 14, 2, 40, 2, -1, 1))
sketch8.addConstraint(Sketcher.Constraint("Symmetric", 16, 2, 42, 2, -1, 1))
sketch8.addConstraint(Sketcher.Constraint("Symmetric", 18, 2, 44, 2, -1, 1))
sketch8.addConstraint(Sketcher.Constraint("Symmetric", 20, 2, 46, 2, -1, 1))
sketch8.addConstraint(Sketcher.Constraint("Symmetric", 22, 2, 48, 2, -1, 1))
sketch8.addConstraint(Sketcher.Constraint("Symmetric", 24, 2, 50, 2, -1, 1))
sketch8.addConstraint(Sketcher.Constraint("Symmetric", 52, 3, 53, 3, -2))
sketch8.addConstraint(Sketcher.Constraint("Symmetric", 56, 3, 59, 3, -2))
sketch8.addConstraint(Sketcher.Constraint("Symmetric", 11, 2, 14, 2, -2))
sketch8.addConstraint(Sketcher.Constraint("Symmetric", 9, 2, 16, 2, -2))
sketch8.addConstraint(Sketcher.Constraint("Symmetric", 7, 2, 18, 2, -2))
sketch8.addConstraint(Sketcher.Constraint("Symmetric", 5, 2, 20, 2, -2))
sketch8.addConstraint(Sketcher.Constraint("Symmetric", 3, 2, 22, 2, -2))
sketch8.addConstraint(Sketcher.Constraint("Symmetric", 1, 2, 24, 2, -2))
sketch8.addConstraint(Sketcher.Constraint("Horizontal", 5, 2, 8, 2))
sketch8.addConstraint(Sketcher.Constraint("Horizontal", 3, 2, 10, 2))
sketch8.addConstraint(Sketcher.Constraint("Horizontal", 7, 2, 12, 2))
sketch8.addConstraint(Sketcher.Constraint("Equal", 5, 9))
sketch8.addConstraint(Sketcher.Constraint("Equal", 3, 11))
sketch8.addConstraint(Sketcher.Constraint("Diameter", 52, 7.0))
sketch8.addConstraint(Sketcher.Constraint("Diameter", 56, 3.0))
sketch8.addConstraint(Sketcher.Constraint("DistanceX", 1, 2, 1, 1, 6.0))
sketch8.addConstraint(Sketcher.Constraint("DistanceX", 3, 2, 3, 1, 3.0))
sketch8.addConstraint(Sketcher.Constraint("DistanceX", 5, 2, 5, 1, 10.0))
sketch8.addConstraint(Sketcher.Constraint("DistanceX", 7, 2, 7, 1, 12.0))
sketch8.addConstraint(Sketcher.Constraint("DistanceX", 13, 2, 13, 1, 22.0))
sketch8.addConstraint(Sketcher.Constraint("DistanceY", 0, 1, 0, 2, 98.0))
sketch8.addConstraint(Sketcher.Constraint("DistanceY", 2, 2, 2, 1, 9.0))
sketch8.addConstraint(Sketcher.Constraint("DistanceY", 12, 1, 12, 2, 15.0))
sketch8.addConstraint(Sketcher.Constraint("DistanceY", 4, 1, 4, 2, 6.5))
sketch8.addConstraint(Sketcher.Constraint("DistanceX", 52, 3, -1, 1, 30.0))
sketch8.addConstraint(Sketcher.Constraint("DistanceX", 56, 3, -1, 1, 52.0))
sketch8.addConstraint(Sketcher.Constraint("DistanceY", -1, 1, 56, 3, 52.0))
sketch8.addConstraint(Sketcher.Constraint("DistanceY", 52, 3, -1, 1, 41.5))
pad8 = doc.addObject("PartDesign::Pad", "Pad007")
body.addObject(pad8)
pad8.Profile = sketch8
pad8.Length = 2
doc.recompute()

fillet = doc.addObject("PartDesign::Fillet", "Fillet")
body.addObject(fillet)
fillet.Base = (pad8, edges_at(pad8, [
    (-57, 57, 21),
    (57, 57, 21),
    (-57, -57, 21),
    (57, -57, 21),
]))
fillet.Radius = 3

doc.recompute()
